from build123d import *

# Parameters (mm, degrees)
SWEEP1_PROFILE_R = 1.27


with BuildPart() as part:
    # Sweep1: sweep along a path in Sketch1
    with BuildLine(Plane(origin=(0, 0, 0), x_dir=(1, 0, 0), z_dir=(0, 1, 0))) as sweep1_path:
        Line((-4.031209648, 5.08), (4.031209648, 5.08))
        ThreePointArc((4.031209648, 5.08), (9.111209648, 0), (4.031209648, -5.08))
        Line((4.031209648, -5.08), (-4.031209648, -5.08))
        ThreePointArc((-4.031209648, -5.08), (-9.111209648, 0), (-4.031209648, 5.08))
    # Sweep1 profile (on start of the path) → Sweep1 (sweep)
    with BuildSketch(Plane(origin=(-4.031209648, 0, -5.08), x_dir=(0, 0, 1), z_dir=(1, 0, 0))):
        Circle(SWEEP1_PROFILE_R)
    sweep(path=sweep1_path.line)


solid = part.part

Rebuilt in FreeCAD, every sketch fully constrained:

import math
import FreeCAD as App
import Part
import Sketcher
Q = App.Units.Quantity

doc = App.newDocument("Part")
body = doc.addObject("PartDesign::Body", "Body")

# Sketch on YZ plane
sketch1 = body.newObject("Sketcher::SketchObject", "Sketch")
sketch1.AttachmentSupport = (doc.getObject("YZ_Plane"), [""])
sketch1.MapMode = "FlatFace"
sketch1.AttachmentOffset = App.Placement(App.Vector(0, 0, -4.03121), App.Rotation())
sketch1.addGeometry(Part.Circle(App.Vector(0, -5.1, 0), App.Vector(0, 0, 1), 1.3), False)
sketch1.addConstraint([
    Sketcher.Constraint("PointOnObject", 0, 3, -2),
    Sketcher.Constraint("Diameter", 0, Q("0.1 in")),
    Sketcher.Constraint("DistanceY", 0, 3, -1, 1, Q("0.2 in")),
])

# Sketch on XZ plane
sketch2 = body.newObject("Sketcher::SketchObject", "Sketch001")
sketch2.AttachmentSupport = (doc.getObject("XZ_Plane"), [""])
sketch2.MapMode = "FlatFace"
sketch2.addGeometry([
    Part.LineSegment(App.Vector(-4, -5, 0), App.Vector(4, -5, 0)),
    Part.ArcOfCircle(Part.Circle(App.Vector(4, 0, 0), App.Vector(0, 0, 1), 5), math.radians(-90), math.radians(90)),
    Part.LineSegment(App.Vector(4, 5, 0), App.Vector(-4, 5, 0)),
    Part.ArcOfCircle(Part.Circle(App.Vector(-4, 0, 0), App.Vector(0, 0, 1), 5), math.radians(90), math.radians(270)),
], False)
sketch2.addConstraint([
    Sketcher.Constraint("Tangent", 0, 2, 1, 1),
    Sketcher.Constraint("Tangent", 1, 2, 2, 1),
    Sketcher.Constraint("Tangent", 2, 2, 3, 1),
    Sketcher.Constraint("Tangent", 3, 2, 0, 1),
    Sketcher.Constraint("Horizontal", 0),
    Sketcher.Constraint("Horizontal", 2),
    Sketcher.Constraint("Symmetric", 1, 3, 3, 3, -1, 1),
    Sketcher.Constraint("Radius", 1, Q("0.2 in")),
    Sketcher.Constraint("DistanceX", 0, 1, 0, 2, 8.062419),
])
doc.recompute()

additivepipe = body.newObject("PartDesign::AdditivePipe", "AdditivePipe")
additivepipe.Profile = sketch1
additivepipe.Spine = (sketch2, ["Edge1", "Edge2", "Edge3", "Edge4"])

doc.recompute()
